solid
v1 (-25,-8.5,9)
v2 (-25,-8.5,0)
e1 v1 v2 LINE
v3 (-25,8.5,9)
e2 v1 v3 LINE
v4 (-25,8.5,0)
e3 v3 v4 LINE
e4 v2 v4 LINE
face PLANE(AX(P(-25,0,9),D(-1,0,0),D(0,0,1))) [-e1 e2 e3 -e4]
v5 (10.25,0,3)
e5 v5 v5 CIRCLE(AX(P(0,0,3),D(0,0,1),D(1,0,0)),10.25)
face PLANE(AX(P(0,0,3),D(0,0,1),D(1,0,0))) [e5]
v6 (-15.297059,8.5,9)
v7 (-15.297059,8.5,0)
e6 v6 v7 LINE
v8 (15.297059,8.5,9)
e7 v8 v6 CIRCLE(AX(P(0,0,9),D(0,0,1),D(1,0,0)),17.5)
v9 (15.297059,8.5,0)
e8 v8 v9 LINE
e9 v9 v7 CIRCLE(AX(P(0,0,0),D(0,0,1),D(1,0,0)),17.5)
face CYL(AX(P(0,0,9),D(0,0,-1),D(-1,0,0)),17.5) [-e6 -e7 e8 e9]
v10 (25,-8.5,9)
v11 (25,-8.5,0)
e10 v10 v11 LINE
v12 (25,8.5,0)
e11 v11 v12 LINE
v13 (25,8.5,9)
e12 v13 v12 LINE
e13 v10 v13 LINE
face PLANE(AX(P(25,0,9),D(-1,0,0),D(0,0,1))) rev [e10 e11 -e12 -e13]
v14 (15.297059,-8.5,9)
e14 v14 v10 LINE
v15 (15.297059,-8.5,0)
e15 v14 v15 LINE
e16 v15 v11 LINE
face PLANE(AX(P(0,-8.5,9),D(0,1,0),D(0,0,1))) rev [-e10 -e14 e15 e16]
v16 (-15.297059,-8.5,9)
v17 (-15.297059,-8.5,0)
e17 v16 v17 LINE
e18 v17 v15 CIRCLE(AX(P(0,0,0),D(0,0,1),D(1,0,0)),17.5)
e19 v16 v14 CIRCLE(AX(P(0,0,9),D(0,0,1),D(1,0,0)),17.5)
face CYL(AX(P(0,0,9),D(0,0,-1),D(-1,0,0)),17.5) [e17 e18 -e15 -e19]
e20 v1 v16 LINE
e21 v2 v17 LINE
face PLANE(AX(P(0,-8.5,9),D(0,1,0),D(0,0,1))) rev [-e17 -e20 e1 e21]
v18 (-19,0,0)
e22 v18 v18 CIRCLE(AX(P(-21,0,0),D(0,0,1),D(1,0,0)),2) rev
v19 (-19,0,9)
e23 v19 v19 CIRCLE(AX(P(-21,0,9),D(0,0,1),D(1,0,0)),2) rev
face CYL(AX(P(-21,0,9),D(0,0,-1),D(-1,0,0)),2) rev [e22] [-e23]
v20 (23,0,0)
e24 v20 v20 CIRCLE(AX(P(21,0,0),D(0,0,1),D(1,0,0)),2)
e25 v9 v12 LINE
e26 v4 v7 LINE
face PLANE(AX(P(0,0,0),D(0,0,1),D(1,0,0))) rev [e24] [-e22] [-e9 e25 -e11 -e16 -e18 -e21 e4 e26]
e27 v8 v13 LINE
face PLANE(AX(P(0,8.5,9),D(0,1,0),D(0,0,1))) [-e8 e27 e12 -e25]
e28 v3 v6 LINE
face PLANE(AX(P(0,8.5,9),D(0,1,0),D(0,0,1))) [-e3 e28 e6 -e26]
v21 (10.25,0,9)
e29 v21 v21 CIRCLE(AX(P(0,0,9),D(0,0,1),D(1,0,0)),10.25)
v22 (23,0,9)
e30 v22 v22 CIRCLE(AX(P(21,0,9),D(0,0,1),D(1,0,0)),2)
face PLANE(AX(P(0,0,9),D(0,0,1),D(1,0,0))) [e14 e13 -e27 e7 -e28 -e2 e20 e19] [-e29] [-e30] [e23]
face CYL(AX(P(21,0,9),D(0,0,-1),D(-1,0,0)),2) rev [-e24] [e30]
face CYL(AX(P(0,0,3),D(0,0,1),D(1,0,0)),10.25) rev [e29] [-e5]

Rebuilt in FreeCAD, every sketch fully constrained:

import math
import FreeCAD as App
import Part
import Sketcher

doc = App.newDocument("Part")
body = doc.addObject("PartDesign::Body", "Body")

sketch1 = body.newObject("Sketcher::SketchObject", "Sketch")
sketch1.AttachmentSupport = (doc.getObject("XY_Plane"), [""])
sketch1.MapMode = "FlatFace"
sketch1.addGeometry([
    Part.LineSegment(App.Vector(-25, 8.5, 0), App.Vector(-25, -8.5, 0)),
    Part.LineSegment(App.Vector(-25, -8.5, 0), App.Vector(-15.297059, -8.5, 0)),
    Part.ArcOfCircle(Part.Circle(App.Vector(0, 0, 0), App.Vector(0, 0, 1), 17.5), math.radians(-150.940719), math.radians(-29.059281)),
    Part.LineSegment(App.Vector(15.297059, -8.5, 0), App.Vector(25, -8.5, 0)),
    Part.LineSegment(App.Vector(25, -8.5, 0), App.Vector(25, 8.5, 0)),
    Part.LineSegment(App.Vector(25, 8.5, 0), App.Vector(15.297059, 8.5, 0)),
    Part.ArcOfCircle(Part.Circle(App.Vector(0, 0, 0), App.Vector(0, 0, 1), 17.5), math.radians(29.059281), math.radians(150.940719)),
    Part.LineSegment(App.Vector(-15.297059, 8.5, 0), App.Vector(-25, 8.5, 0)),
    Part.Circle(App.Vector(-21, 0, 0), App.Vector(0, 0, 1), 2),
    Part.Circle(App.Vector(21, 0, 0), App.Vector(0, 0, 1), 2),
], False)
sketch1.addConstraint([
    Sketcher.Constraint("Coincident", 0, 2, 1, 1),
    Sketcher.Constraint("Coincident", 1, 2, 2, 1),
    Sketcher.Constraint("Coincident", 2, 2, 3, 1),
    Sketcher.Constraint("Coincident", 3, 2, 4, 1),
    Sketcher.Constraint("Coincident", 4, 2, 5, 1),
    Sketcher.Constraint("Coincident", 5, 2, 6, 1),
    Sketcher.Constraint("Coincident", 6, 2, 7, 1),
    Sketcher.Constraint("Coincident", 7, 2, 0, 1),
    Sketcher.Constraint("Vertical", 0),
    Sketcher.Constraint("Horizontal", 1),
    Sketcher.Constraint("Horizontal", 3),
    Sketcher.Constraint("Vertical", 4),
    Sketcher.Constraint("Horizontal", 5),
    Sketcher.Constraint("Horizontal", 7),
    Sketcher.Constraint("Coincident", 2, 3, -1, 1),
    Sketcher.Constraint("Coincident", 6, 3, -1, 1),
    Sketcher.Constraint("Equal", 2, 6),
    Sketcher.Constraint("Equal", 8, 9),
    Sketcher.Constraint("Symmetric", 8, 3, 9, 3, -1, 1),
    Sketcher.Constraint("Symmetric", 0, 2, 4, 2, -1, 1),
    Sketcher.Constraint("PointOnObject", 8, 3, -1),
    Sketcher.Constraint("Horizontal", 1, 2, 2, 2),
    Sketcher.Constraint("Horizontal", 5, 2, 6, 2),
    Sketcher.Constraint("Diameter", 8, 4.0),
    Sketcher.Constraint("Radius", 2, 17.5),
    Sketcher.Constraint("DistanceY", 0, 2, 0, 1, 17.0),
    Sketcher.Constraint("DistanceX", 8, 3, -1, 1, 21.0),
    Sketcher.Constraint("DistanceX", 0, 2, -1, 1, 25.0),
])
pad1 = body.newObject("PartDesign::Pad", "Pad")
pad1.Profile = sketch1
pad1.Length = 9

sketch2 = body.newObject("Sketcher::SketchObject", "Sketch001")
sketch2.AttachmentSupport = (doc.getObject("XY_Plane"), [""])
sketch2.MapMode = "FlatFace"
sketch2.AttachmentOffset = App.Placement(App.Vector(0, 0, 9), App.Rotation())
sketch2.addGeometry(Part.Circle(App.Vector(0, 0, 0), App.Vector(0, 0, 1), 10.25), False)
sketch2.addConstraint([
    Sketcher.Constraint("Coincident", 0, 3, -1, 1),
    Sketcher.Constraint("Diameter", 0, 20.5),
])
pocket1 = body.newObject("PartDesign::Pocket", "Pocket")
pocket1.Profile = sketch2
pocket1.Length = 6

doc.recompute()
